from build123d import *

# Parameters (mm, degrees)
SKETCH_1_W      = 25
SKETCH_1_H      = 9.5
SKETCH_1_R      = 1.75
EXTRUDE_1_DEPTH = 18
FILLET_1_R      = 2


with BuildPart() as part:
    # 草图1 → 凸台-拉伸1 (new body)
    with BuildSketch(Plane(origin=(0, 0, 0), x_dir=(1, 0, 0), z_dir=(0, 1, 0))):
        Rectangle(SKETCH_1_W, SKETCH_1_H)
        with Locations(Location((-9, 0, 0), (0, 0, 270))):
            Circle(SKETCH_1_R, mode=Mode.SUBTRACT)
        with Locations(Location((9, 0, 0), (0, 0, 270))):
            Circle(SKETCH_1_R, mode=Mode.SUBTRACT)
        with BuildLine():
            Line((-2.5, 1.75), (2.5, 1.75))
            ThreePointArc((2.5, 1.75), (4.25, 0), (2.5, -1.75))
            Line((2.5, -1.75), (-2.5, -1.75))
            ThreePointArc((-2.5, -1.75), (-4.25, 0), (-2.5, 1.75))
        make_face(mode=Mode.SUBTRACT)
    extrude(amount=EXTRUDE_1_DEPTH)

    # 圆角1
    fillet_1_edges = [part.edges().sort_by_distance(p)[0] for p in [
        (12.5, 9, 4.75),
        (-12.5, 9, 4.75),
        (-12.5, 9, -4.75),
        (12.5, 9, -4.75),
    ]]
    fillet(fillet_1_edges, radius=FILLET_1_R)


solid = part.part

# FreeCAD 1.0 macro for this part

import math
import FreeCAD as App
import Part
import Sketcher

V = App.Vector


def edges_at(feature, points):
    """Names of the edges that pass closest to the given points."""
    edges = feature.Shape.Edges
    near = lambda p: min(range(len(edges)), key=lambda i: edges[i].distToShape(Part.Vertex(*p))[0])
    return sorted({f"Edge{near(p) + 1}" for p in points})


def add_polygon(sketch, points):
    """Adds a closed chain of lines whose ends are joined by coincident constraints."""
    first, n = sketch.GeometryCount, len(points)
    for a, b in zip(points, points[1:] + points[:1]):
        sketch.addGeometry(Part.LineSegment(App.Vector(*a, 0), App.Vector(*b, 0)), False)
    for i in range(n):
        sketch.addConstraint(Sketcher.Constraint("Coincident", first + i, 2, first + (i + 1) % n, 1))

doc = App.newDocument("Part")
body = doc.addObject("PartDesign::Body", "Body")

# Sketch on XZ plane
sketch1 = body.newObject("Sketcher::SketchObject", "Sketch")
sketch1.AttachmentSupport = (doc.getObject("XZ_Plane"), [""])
sketch1.MapMode = "FlatFace"
add_polygon(sketch1, [(-12.5, -4.75), (-12.5, 4.75), (12.5, 4.75), (12.5, -4.75)])  # lines 0-3
sketch1.addGeometry(Part.Circle(V(-9, 0, 0), V(0, 0, 1), 1.75), False)  # 4
sketch1.addGeometry(Part.ArcOfCircle(Part.Circle(V(-2.5, 0, 0), V(0, 0, 1), 1.75), math.radians(90), math.radians(270)), False)  # 5
sketch1.addGeometry(Part.LineSegment(V(-2.5, -1.75, 0), V(2.5, -1.75, 0)), False)  # 6
sketch1.addGeometry(Part.ArcOfCircle(Part.Circle(V(2.5, 0, 0), V(0, 0, 1), 1.75), math.radians(-90), math.radians(90)), False)  # 7
sketch1.addGeometry(Part.LineSegment(V(2.5, 1.75, 0), V(-2.5, 1.75, 0)), False)  # 8
sketch1.addGeometry(Part.Circle(V(9, 0, 0), V(0, 0, 1), 1.75), False)  # 9
sketch1.addConstraint([
    Sketcher.Constraint("Tangent", 5, 2, 6, 1),
    Sketcher.Constraint("Tangent", 6, 2, 7, 1),
    Sketcher.Constraint("Tangent", 7, 2, 8, 1),
    Sketcher.Constraint("Tangent", 8, 2, 5, 1),
    Sketcher.Constraint("Vertical", 0),
    Sketcher.Constraint("Horizontal", 1),
    Sketcher.Constraint("Vertical", 2),
    Sketcher.Constraint("Horizontal", 3),
    Sketcher.Constraint("Horizontal", 6),
    Sketcher.Constraint("Horizontal", 8),
    Sketcher.Constraint("Equal", 4, 5),
    Sketcher.Constraint("Equal", 7, 9),
    Sketcher.Constraint("Symmetric", 5, 3, 7, 3, -1, 1),
    Sketcher.Constraint("Symmetric", 4, 3, 9, 3, -1, 1),
    Sketcher.Constraint("Symmetric", 0, 2, 2, 2, -1, 1),
    Sketcher.Constraint("PointOnObject", 4, 3, -1),
    Sketcher.Constraint("Diameter", 4, 3.5),
    Sketcher.Constraint("DistanceX", 1, 1, 1, 2, 25.0),
    Sketcher.Constraint("DistanceX", 6, 1, 6, 2, 5.0),
    Sketcher.Constraint("DistanceY", 0, 1, 0, 2, 9.5),
    Sketcher.Constraint("DistanceX", 4, 3, -1, 1, 9.0),
])
pad1 = body.newObject("PartDesign::Pad", "Pad")
pad1.Profile = sketch1
pad1.Length = 18
pad1.Reversed = True
doc.recompute()

fillet = body.newObject("PartDesign::Fillet", "Fillet")
fillet.Base = (pad1, edges_at(pad1, [
    (12.5, 9, 4.75),
    (-12.5, 9, 4.75),
    (-12.5, 9, -4.75),
    (12.5, 9, -4.75),
]))
fillet.Radius = 2

doc.recompute()
